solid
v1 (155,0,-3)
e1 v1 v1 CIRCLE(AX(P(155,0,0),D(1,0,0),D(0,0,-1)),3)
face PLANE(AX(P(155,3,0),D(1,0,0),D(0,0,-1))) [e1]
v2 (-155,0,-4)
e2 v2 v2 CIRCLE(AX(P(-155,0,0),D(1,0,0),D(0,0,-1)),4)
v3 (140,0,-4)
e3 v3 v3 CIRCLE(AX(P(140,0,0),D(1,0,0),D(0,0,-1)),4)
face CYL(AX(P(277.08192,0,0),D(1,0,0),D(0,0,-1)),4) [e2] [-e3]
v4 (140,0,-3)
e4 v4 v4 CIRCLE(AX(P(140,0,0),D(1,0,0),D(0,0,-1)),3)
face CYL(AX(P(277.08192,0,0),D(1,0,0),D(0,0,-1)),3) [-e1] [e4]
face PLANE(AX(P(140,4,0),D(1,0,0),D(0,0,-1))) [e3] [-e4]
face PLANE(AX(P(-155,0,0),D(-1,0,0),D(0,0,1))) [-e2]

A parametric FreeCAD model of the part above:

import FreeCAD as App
import Part
import Sketcher
Q = App.Units.Quantity

doc = App.newDocument("Part")
body = doc.addObject("PartDesign::Body", "Body")

# Sketch on XY plane
sketch1 = body.newObject("Sketcher::SketchObject", "Sketch")
sketch1.AttachmentSupport = (doc.getObject("XY_Plane"), [""])
sketch1.MapMode = "FlatFace"
sketch1.addGeometry([
    Part.LineSegment(App.Vector(-155, 4, 0), App.Vector(-155, 0, 0)),  # 0
    Part.LineSegment(App.Vector(-155, 0, 0), App.Vector(155, 0, 0)),  # 1
    Part.LineSegment(App.Vector(155, 0, 0), App.Vector(155, 3, 0)),  # 2
    Part.LineSegment(App.Vector(155, 3, 0), App.Vector(140, 3, 0)),  # 3
    Part.LineSegment(App.Vector(140, 3, 0), App.Vector(140, 4, 0)),  # 4
    Part.LineSegment(App.Vector(140, 4, 0), App.Vector(-155, 4, 0)),  # 5
], False)
sketch1.addConstraint([
    Sketcher.Constraint("Coincident", 0, 2, 1, 1),
    Sketcher.Constraint("Coincident", 1, 2, 2, 1),
    Sketcher.Constraint("Coincident", 2, 2, 3, 1),
    Sketcher.Constraint("Coincident", 3, 2, 4, 1),
    Sketcher.Constraint("Coincident", 4, 2, 5, 1),
    Sketcher.Constraint("Coincident", 5, 2, 0, 1),
    Sketcher.Constraint("Vertical", 0),
    Sketcher.Constraint("Horizontal", 1),
    Sketcher.Constraint("Vertical", 2),
    Sketcher.Constraint("Horizontal", 3),
    Sketcher.Constraint("Vertical", 4),
    Sketcher.Constraint("Horizontal", 5),
    Sketcher.Constraint("Symmetric", 0, 2, 1, 2, -1, 1),
    Sketcher.Constraint("DistanceX", 1, 1, 1, 2, Q("310 mm")),
    Sketcher.Constraint("DistanceX", 3, 2, 3, 1, Q("15 mm")),
    Sketcher.Constraint("DistanceY", 0, 2, 0, 1, Q("4 mm")),
    Sketcher.Constraint("DistanceY", 2, 1, 2, 2, Q("3 mm")),
])
revolution = body.newObject("PartDesign::Revolution", "Revolution")
revolution.Profile = sketch1
revolution.ReferenceAxis = (sketch1, ["H_Axis"])
revolution.Angle = 360

doc.recompute()
